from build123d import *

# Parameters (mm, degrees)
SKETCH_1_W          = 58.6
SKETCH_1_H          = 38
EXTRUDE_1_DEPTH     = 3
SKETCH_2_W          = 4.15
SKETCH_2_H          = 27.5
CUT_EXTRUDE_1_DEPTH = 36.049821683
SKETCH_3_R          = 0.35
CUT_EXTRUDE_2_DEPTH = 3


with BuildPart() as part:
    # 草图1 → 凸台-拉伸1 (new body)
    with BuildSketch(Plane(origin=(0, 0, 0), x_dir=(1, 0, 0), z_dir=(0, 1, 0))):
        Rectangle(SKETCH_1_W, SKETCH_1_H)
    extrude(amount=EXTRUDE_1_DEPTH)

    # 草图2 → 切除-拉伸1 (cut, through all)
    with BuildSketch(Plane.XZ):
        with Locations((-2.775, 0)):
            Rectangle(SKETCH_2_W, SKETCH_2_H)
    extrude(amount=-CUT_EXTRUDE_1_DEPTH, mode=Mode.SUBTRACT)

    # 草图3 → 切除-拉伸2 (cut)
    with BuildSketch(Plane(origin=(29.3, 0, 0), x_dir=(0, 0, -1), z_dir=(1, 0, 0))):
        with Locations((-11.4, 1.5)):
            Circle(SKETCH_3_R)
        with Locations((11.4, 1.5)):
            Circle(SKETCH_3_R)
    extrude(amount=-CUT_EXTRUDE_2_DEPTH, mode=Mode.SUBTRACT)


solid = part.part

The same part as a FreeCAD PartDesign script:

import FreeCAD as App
import Part
import Sketcher
from FreeCAD import Vector
Q = App.Units.Quantity

doc = App.newDocument("Part")
body = doc.addObject("PartDesign::Body", "Body")

sketch1 = body.newObject("Sketcher::SketchObject", "Sketch")
sketch1.AttachmentSupport = (doc.getObject("XZ_Plane"), [""])
sketch1.MapMode = "FlatFace"
sketch1.addGeometry([
    Part.LineSegment(Vector(-29, -19, 0), Vector(-29, 19, 0)),
    Part.LineSegment(Vector(-29, 19, 0), Vector(29, 19, 0)),
    Part.LineSegment(Vector(29, 19, 0), Vector(29, -19, 0)),
    Part.LineSegment(Vector(29, -19, 0), Vector(-29, -19, 0)),
], False)
sketch1.addConstraint([
    Sketcher.Constraint("Coincident", 0, 2, 1, 1),
    Sketcher.Constraint("Coincident", 1, 2, 2, 1),
    Sketcher.Constraint("Coincident", 2, 2, 3, 1),
    Sketcher.Constraint("Coincident", 3, 2, 0, 1),
    Sketcher.Constraint("Vertical", 0),
    Sketcher.Constraint("Horizontal", 1),
    Sketcher.Constraint("Vertical", 2),
    Sketcher.Constraint("Horizontal", 3),
    Sketcher.Constraint("Symmetric", 0, 2, 2, 2, -1, 1),
    Sketcher.Constraint("DistanceY", 0, 1, 0, 2, Q("38 mm")),
    Sketcher.Constraint("DistanceX", 1, 1, 1, 2, Q("58.6 mm")),
])
pad1 = body.newObject("PartDesign::Pad", "Pad")
pad1.Profile = sketch1
pad1.Length = 3
pad1.Reversed = True

sketch2 = body.newObject("Sketcher::SketchObject", "Sketch001")
sketch2.AttachmentSupport = (doc.getObject("XZ_Plane"), [""])
sketch2.MapMode = "FlatFace"
sketch2.addGeometry([
    Part.LineSegment(Vector(-4.8, 13.8, 0), Vector(-4.8, -13.8, 0)),
    Part.LineSegment(Vector(-4.8, -13.8, 0), Vector(-0.7, -13.8, 0)),
    Part.LineSegment(Vector(-0.7, -13.8, 0), Vector(-0.7, 13.8, 0)),
    Part.LineSegment(Vector(-0.7, 13.8, 0), Vector(-4.8, 13.8, 0)),
], False)
sketch2.addConstraint([
    Sketcher.Constraint("Coincident", 0, 2, 1, 1),
    Sketcher.Constraint("Coincident", 1, 2, 2, 1),
    Sketcher.Constraint("Coincident", 2, 2, 3, 1),
    Sketcher.Constraint("Coincident", 3, 2, 0, 1),
    Sketcher.Constraint("Vertical", 0),
    Sketcher.Constraint("Horizontal", 1),
    Sketcher.Constraint("Vertical", 2),
    Sketcher.Constraint("Horizontal", 3),
    Sketcher.Constraint("DistanceY", 0, 2, 0, 1, Q("27.5 mm")),
    Sketcher.Constraint("DistanceX", 1, 1, 1, 2, Q("4.15 mm")),
    Sketcher.Constraint("DistanceX", 1, 2, -1, 1, Q("0.7 mm")),
    Sketcher.Constraint("DistanceY", 0, 2, -1, 1, Q("13.75 mm")),
])
pocket1 = body.newObject("PartDesign::Pocket", "Pocket")
pocket1.Profile = sketch2
pocket1.Type = "ThroughAll"

sketch3 = body.newObject("Sketcher::SketchObject", "Sketch002")
sketch3.AttachmentSupport = (doc.getObject("YZ_Plane"), [""])
sketch3.MapMode = "FlatFace"
sketch3.AttachmentOffset = App.Placement(Vector(0, 0, 29.3), App.Rotation())
sketch3.addGeometry([
    Part.Circle(Vector(1.5, 11.4, 0), Vector(0, 0, 1), 0.35),
    Part.Circle(Vector(1.5, -11.4, 0), Vector(0, 0, 1), 0.35),
], False)
sketch3.addConstraint([
    Sketcher.Constraint("Equal", 0, 1),
    Sketcher.Constraint("Symmetric", 0, 3, 1, 3, -1),
    Sketcher.Constraint("Diameter", 0, Q("0.7 mm")),
    Sketcher.Constraint("DistanceX", -1, 1, 0, 3, Q("1.5 mm")),
    Sketcher.Constraint("DistanceY", -1, 1, 0, 3, Q("11.4 mm")),
])
pocket2 = body.newObject("PartDesign::Pocket", "Pocket001")
pocket2.Profile = sketch3
pocket2.Length = 3

doc.recompute()
